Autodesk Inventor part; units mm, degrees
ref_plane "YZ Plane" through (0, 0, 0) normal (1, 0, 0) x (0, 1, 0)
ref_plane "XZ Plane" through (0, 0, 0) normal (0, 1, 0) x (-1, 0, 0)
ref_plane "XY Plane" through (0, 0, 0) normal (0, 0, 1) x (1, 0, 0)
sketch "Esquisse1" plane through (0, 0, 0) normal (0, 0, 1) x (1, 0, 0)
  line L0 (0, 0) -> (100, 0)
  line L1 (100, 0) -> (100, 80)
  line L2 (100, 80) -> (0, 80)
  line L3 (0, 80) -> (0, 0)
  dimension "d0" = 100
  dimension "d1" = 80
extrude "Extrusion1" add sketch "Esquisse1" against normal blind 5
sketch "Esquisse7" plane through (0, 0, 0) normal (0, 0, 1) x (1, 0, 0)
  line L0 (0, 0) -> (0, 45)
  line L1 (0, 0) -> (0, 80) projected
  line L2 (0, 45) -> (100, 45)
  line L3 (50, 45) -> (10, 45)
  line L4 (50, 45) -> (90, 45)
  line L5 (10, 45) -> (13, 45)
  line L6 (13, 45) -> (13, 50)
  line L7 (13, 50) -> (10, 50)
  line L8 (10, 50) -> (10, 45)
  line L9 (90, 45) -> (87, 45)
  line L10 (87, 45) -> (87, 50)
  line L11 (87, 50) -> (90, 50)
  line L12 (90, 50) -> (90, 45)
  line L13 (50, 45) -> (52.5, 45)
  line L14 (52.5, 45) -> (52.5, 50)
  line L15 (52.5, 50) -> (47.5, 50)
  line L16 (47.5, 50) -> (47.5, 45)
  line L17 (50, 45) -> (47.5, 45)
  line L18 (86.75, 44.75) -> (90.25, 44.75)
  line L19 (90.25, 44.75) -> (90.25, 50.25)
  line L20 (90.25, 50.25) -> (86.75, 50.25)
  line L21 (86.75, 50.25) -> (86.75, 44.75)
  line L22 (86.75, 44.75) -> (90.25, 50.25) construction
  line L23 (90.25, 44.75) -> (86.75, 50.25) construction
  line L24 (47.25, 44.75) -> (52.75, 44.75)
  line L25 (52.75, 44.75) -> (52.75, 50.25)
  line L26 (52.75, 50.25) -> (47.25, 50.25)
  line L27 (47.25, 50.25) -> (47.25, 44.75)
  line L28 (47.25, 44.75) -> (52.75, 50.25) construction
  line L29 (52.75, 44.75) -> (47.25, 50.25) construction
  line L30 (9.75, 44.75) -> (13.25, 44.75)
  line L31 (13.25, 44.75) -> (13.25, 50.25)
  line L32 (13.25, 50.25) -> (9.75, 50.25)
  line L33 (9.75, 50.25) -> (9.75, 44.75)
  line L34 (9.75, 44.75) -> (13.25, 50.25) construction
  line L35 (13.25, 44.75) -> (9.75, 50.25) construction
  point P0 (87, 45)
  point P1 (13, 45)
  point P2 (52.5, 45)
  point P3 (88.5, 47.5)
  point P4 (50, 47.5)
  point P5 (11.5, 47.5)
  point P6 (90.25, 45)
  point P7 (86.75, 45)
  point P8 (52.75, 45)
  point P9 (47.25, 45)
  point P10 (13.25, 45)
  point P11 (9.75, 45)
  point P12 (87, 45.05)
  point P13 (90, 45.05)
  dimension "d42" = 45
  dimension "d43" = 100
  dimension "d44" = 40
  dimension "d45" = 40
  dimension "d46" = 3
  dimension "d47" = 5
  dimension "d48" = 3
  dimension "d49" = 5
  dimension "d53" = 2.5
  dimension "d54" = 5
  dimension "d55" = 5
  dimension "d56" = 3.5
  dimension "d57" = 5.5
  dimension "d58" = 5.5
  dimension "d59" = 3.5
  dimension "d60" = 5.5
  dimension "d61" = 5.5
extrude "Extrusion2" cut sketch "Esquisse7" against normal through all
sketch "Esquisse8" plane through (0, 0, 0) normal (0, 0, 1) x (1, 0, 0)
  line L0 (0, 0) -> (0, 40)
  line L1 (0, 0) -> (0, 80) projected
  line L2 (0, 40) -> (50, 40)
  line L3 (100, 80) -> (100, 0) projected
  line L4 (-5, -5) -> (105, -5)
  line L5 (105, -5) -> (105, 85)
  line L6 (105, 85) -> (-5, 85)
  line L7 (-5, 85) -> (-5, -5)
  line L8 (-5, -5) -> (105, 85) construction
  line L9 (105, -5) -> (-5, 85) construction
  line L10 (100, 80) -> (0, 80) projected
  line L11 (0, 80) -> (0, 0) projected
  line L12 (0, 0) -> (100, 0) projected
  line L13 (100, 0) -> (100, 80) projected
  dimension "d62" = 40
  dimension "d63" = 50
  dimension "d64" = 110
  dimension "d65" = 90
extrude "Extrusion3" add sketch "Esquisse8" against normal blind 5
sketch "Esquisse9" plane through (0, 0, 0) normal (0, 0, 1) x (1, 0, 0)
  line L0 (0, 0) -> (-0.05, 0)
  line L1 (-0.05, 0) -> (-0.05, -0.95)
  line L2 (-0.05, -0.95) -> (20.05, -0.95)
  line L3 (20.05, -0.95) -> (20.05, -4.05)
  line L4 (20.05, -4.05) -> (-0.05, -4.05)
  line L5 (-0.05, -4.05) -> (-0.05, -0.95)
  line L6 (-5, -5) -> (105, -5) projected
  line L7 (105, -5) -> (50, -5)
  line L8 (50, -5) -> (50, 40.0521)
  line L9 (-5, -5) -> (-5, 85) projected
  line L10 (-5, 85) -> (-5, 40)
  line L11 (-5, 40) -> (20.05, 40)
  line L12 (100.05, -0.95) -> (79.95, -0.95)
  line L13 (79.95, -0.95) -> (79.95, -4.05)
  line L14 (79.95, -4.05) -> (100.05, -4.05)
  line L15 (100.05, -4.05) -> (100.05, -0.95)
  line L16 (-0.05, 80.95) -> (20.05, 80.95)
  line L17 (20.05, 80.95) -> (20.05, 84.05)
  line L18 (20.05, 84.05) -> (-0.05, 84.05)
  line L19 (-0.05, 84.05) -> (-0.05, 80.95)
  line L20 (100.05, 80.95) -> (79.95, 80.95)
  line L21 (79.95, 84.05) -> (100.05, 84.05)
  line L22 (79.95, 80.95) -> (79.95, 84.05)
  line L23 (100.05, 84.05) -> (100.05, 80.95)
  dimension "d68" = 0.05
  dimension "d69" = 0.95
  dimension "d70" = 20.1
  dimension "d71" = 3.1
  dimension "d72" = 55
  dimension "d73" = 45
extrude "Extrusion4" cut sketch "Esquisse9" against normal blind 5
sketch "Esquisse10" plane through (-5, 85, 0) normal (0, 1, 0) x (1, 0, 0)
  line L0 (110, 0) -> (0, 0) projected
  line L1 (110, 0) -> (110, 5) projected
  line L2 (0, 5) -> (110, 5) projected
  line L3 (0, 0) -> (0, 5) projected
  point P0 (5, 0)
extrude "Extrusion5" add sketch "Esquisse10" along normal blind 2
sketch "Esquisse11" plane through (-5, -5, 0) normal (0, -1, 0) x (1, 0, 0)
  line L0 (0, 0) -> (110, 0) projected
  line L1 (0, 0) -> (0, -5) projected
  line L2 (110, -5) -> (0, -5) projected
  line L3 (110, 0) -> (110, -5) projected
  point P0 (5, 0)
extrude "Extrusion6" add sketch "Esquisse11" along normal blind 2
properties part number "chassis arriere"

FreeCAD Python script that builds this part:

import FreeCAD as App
import Part
import Sketcher
Q = App.Units.Quantity


def add_polygon(sketch, points):
    """Adds a closed chain of lines whose ends are joined by coincident constraints."""
    first, n = sketch.GeometryCount, len(points)
    for a, b in zip(points, points[1:] + points[:1]):
        sketch.addGeometry(Part.LineSegment(App.Vector(*a, 0), App.Vector(*b, 0)), False)
    for i in range(n):
        sketch.addConstraint(Sketcher.Constraint("Coincident", first + i, 2, first + (i + 1) % n, 1))

doc = App.newDocument("Part")
body = doc.addObject("PartDesign::Body", "Body")

sketch1 = doc.addObject("Sketcher::SketchObject", "Sketch")
body.addObject(sketch1)
sketch1.AttachmentSupport = (doc.XY_Plane, [""])
sketch1.MapMode = "FlatFace"
add_polygon(sketch1, [(0, 80), (0, 0), (100, 0), (100, 80)])
sketch1.addConstraint([
    Sketcher.Constraint("Vertical", 0),
    Sketcher.Constraint("Horizontal", 1),
    Sketcher.Constraint("Vertical", 2),
    Sketcher.Constraint("Horizontal", 3),
    Sketcher.Constraint("Coincident", 0, 2, -1, 1),
    Sketcher.Constraint("DistanceX", 1, 1, 1, 2, Q("100 mm")),
    Sketcher.Constraint("DistanceY", 0, 2, 0, 1, Q("80 mm")),
])
pad1 = doc.addObject("PartDesign::Pad", "Pad")
body.addObject(pad1)
pad1.Profile = sketch1
pad1.Length = 5
pad1.Reversed = True

sketch2 = doc.addObject("Sketcher::SketchObject", "Sketch001")
body.addObject(sketch2)
sketch2.AttachmentSupport = (doc.XY_Plane, [""])
sketch2.MapMode = "FlatFace"
add_polygon(sketch2, [(9.75, 50.25), (9.75, 44.75), (13.25, 44.75), (13.25, 50.25)])
add_polygon(sketch2, [(86.75, 50.25), (86.75, 44.75), (90.25, 44.75), (90.25, 50.25)])
add_polygon(sketch2, [(47.25, 50.25), (47.25, 44.75), (52.75, 44.75), (52.75, 50.25)])
sketch2.addConstraint([
    Sketcher.Constraint("Vertical", 0),
    Sketcher.Constraint("Horizontal", 1),
    Sketcher.Constraint("Vertical", 2),
    Sketcher.Constraint("Horizontal", 3),
    Sketcher.Constraint("Vertical", 4),
    Sketcher.Constraint("Horizontal", 5),
    Sketcher.Constraint("Vertical", 6),
    Sketcher.Constraint("Horizontal", 7),
    Sketcher.Constraint("Vertical", 8),
    Sketcher.Constraint("Horizontal", 9),
    Sketcher.Constraint("Vertical", 10),
    Sketcher.Constraint("Horizontal", 11),
    Sketcher.Constraint("Horizontal", 1, 2, 4, 2),
    Sketcher.Constraint("Horizontal", 3, 2, 6, 2),
    Sketcher.Constraint("Horizontal", 5, 2, 8, 2),
    Sketcher.Constraint("Horizontal", 7, 2, 10, 2),
    Sketcher.Constraint("Equal", 3, 5),
    Sketcher.Constraint("Equal", 11, 0),
    Sketcher.Constraint("DistanceX", 1, 1, 1, 2, Q("3.5 mm")),
    Sketcher.Constraint("DistanceX", 9, 1, 9, 2, Q("5.5 mm")),
    Sketcher.Constraint("DistanceX", 0, 2, 4, 2, Q("77 mm")),
    Sketcher.Constraint("DistanceX", 1, 2, 8, 2, Q("34 mm")),
    Sketcher.Constraint("DistanceX", -1, 1, 0, 2, Q("9.75 mm")),
    Sketcher.Constraint("DistanceY", -1, 1, 0, 2, Q("44.75 mm")),
])
pocket1 = doc.addObject("PartDesign::Pocket", "Pocket")
body.addObject(pocket1)
pocket1.Profile = sketch2
pocket1.Type = "ThroughAll"

sketch3 = doc.addObject("Sketcher::SketchObject", "Sketch002")
body.addObject(sketch3)
sketch3.AttachmentSupport = (doc.XY_Plane, [""])
sketch3.MapMode = "FlatFace"
add_polygon(sketch3, [(-5, 85), (-5, -5), (105, -5), (105, 85)])
add_polygon(sketch3, [(100, 0), (0, 0), (0, 80), (100, 80)])
sketch3.addConstraint([
    Sketcher.Constraint("Vertical", 0),
    Sketcher.Constraint("Horizontal", 1),
    Sketcher.Constraint("Vertical", 2),
    Sketcher.Constraint("Horizontal", 3),
    Sketcher.Constraint("Horizontal", 4),
    Sketcher.Constraint("Vertical", 5),
    Sketcher.Constraint("Horizontal", 6),
    Sketcher.Constraint("Vertical", 7),
    Sketcher.Constraint("Coincident", 4, 2, -1, 1),
    Sketcher.Constraint("DistanceX", 1, 1, 1, 2, Q("110 mm")),
    Sketcher.Constraint("DistanceY", 0, 2, 0, 1, Q("90 mm")),
    Sketcher.Constraint("DistanceX", 4, 2, 4, 1, Q("100 mm")),
    Sketcher.Constraint("DistanceY", 5, 1, 5, 2, Q("80 mm")),
    Sketcher.Constraint("DistanceX", 0, 2, -1, 1, Q("5 mm")),
    Sketcher.Constraint("DistanceY", 0, 2, -1, 1, Q("5 mm")),
])
pad2 = doc.addObject("PartDesign::Pad", "Pad001")
body.addObject(pad2)
pad2.Profile = sketch3
pad2.Length = 5
pad2.Reversed = True

sketch4 = doc.addObject("Sketcher::SketchObject", "Sketch003")
body.addObject(sketch4)
sketch4.AttachmentSupport = (doc.XY_Plane, [""])
sketch4.MapMode = "FlatFace"
add_polygon(sketch4, [(20.05, -0.95), (-0.05, -0.95), (-0.05, -4.05), (20.05, -4.05)])
add_polygon(sketch4, [(100.05, -4.05), (100.05, -0.95), (79.95, -0.95), (79.95, -4.05)])
add_polygon(sketch4, [(-0.05, 84.05), (-0.05, 80.95), (20.05, 80.95), (20.05, 84.05)])
add_polygon(sketch4, [(79.95, 80.95), (100.05, 80.95), (100.05, 84.05), (79.95, 84.05)])
sketch4.addConstraint([
    Sketcher.Constraint("Horizontal", 0),
    Sketcher.Constraint("Vertical", 1),
    Sketcher.Constraint("Horizontal", 2),
    Sketcher.Constraint("Vertical", 3),
    Sketcher.Constraint("Vertical", 4),
    Sketcher.Constraint("Horizontal", 5),
    Sketcher.Constraint("Vertical", 6),
    Sketcher.Constraint("Horizontal", 7),
    Sketcher.Constraint("Vertical", 8),
    Sketcher.Constraint("Horizontal", 9),
    Sketcher.Constraint("Vertical", 10),
    Sketcher.Constraint("Horizontal", 11),
    Sketcher.Constraint("Horizontal", 12),
    Sketcher.Constraint("Vertical", 13),
    Sketcher.Constraint("Horizontal", 14),
    Sketcher.Constraint("Vertical", 15),
    Sketcher.Constraint("Horizontal", 3, 2, 4, 2),
    Sketcher.Constraint("Horizontal", 2, 2, 6, 2),
    Sketcher.Constraint("Horizontal", 9, 2, 12, 2),
    Sketcher.Constraint("Horizontal", 11, 2, 13, 2),
    Sketcher.Constraint("Vertical", 1, 2, 8, 2),
    Sketcher.Constraint("Vertical", 3, 2, 9, 2),
    Sketcher.Constraint("Vertical", 7, 2, 12, 2),
    Sketcher.Constraint("Vertical", 6, 2, 14, 2),
    Sketcher.Constraint("Equal", 2, 5),
    Sketcher.Constraint("Equal", 6, 8),
    Sketcher.Constraint("DistanceX", 0, 2, 0, 1, Q("20.1 mm")),
    Sketcher.Constraint("DistanceY", 1, 2, 1, 1, Q("3.1 mm")),
    Sketcher.Constraint("DistanceX", 0, 2, -1, 1, Q("0.05 mm")),
    Sketcher.Constraint("DistanceY", 0, 2, -1, 1, Q("0.95 mm")),
    Sketcher.Constraint("DistanceX", 3, 2, 4, 2, Q("80 mm")),
    Sketcher.Constraint("DistanceY", 1, 2, 8, 2, Q("85 mm")),
])
pocket2 = doc.addObject("PartDesign::Pocket", "Pocket001")
body.addObject(pocket2)
pocket2.Profile = sketch4
pocket2.Length = 5

sketch5 = doc.addObject("Sketcher::SketchObject", "Sketch004")
body.addObject(sketch5)
sketch5.AttachmentSupport = (doc.XZ_Plane, [""])
sketch5.MapMode = "FlatFace"
sketch5.AttachmentOffset = App.Placement(App.Vector(0, 0, -85), App.Rotation())
add_polygon(sketch5, [(-5, 0), (105, 0), (105, -5), (-5, -5)])
sketch5.addConstraint([
    Sketcher.Constraint("Horizontal", 0),
    Sketcher.Constraint("Vertical", 1),
    Sketcher.Constraint("Horizontal", 2),
    Sketcher.Constraint("Vertical", 3),
    Sketcher.Constraint("PointOnObject", 0, 2, -1),
    Sketcher.Constraint("DistanceX", 0, 1, 0, 2, Q("110 mm")),
    Sketcher.Constraint("DistanceY", 1, 2, 1, 1, Q("5 mm")),
    Sketcher.Constraint("DistanceX", -1, 1, 0, 2, Q("105 mm")),
])
pad3 = doc.addObject("PartDesign::Pad", "Pad002")
body.addObject(pad3)
pad3.Profile = sketch5
pad3.Length = 2
pad3.Reversed = True

sketch6 = doc.addObject("Sketcher::SketchObject", "Sketch005")
body.addObject(sketch6)
sketch6.AttachmentSupport = (doc.XZ_Plane, [""])
sketch6.MapMode = "FlatFace"
sketch6.AttachmentOffset = App.Placement(App.Vector(0, 0, 5), App.Rotation())
add_polygon(sketch6, [(105, 0), (-5, 0), (-5, -5), (105, -5)])
sketch6.addConstraint([
    Sketcher.Constraint("Horizontal", 0),
    Sketcher.Constraint("Vertical", 1),
    Sketcher.Constraint("Horizontal", 2),
    Sketcher.Constraint("Vertical", 3),
    Sketcher.Constraint("PointOnObject", 0, 2, -1),
    Sketcher.Constraint("DistanceX", 0, 2, 0, 1, Q("110 mm")),
    Sketcher.Constraint("DistanceY", 1, 2, 1, 1, Q("5 mm")),
    Sketcher.Constraint("DistanceX", 0, 2, -1, 1, Q("5 mm")),
])
pad4 = doc.addObject("PartDesign::Pad", "Pad003")
body.addObject(pad4)
pad4.Profile = sketch6
pad4.Length = 2

doc.recompute()
